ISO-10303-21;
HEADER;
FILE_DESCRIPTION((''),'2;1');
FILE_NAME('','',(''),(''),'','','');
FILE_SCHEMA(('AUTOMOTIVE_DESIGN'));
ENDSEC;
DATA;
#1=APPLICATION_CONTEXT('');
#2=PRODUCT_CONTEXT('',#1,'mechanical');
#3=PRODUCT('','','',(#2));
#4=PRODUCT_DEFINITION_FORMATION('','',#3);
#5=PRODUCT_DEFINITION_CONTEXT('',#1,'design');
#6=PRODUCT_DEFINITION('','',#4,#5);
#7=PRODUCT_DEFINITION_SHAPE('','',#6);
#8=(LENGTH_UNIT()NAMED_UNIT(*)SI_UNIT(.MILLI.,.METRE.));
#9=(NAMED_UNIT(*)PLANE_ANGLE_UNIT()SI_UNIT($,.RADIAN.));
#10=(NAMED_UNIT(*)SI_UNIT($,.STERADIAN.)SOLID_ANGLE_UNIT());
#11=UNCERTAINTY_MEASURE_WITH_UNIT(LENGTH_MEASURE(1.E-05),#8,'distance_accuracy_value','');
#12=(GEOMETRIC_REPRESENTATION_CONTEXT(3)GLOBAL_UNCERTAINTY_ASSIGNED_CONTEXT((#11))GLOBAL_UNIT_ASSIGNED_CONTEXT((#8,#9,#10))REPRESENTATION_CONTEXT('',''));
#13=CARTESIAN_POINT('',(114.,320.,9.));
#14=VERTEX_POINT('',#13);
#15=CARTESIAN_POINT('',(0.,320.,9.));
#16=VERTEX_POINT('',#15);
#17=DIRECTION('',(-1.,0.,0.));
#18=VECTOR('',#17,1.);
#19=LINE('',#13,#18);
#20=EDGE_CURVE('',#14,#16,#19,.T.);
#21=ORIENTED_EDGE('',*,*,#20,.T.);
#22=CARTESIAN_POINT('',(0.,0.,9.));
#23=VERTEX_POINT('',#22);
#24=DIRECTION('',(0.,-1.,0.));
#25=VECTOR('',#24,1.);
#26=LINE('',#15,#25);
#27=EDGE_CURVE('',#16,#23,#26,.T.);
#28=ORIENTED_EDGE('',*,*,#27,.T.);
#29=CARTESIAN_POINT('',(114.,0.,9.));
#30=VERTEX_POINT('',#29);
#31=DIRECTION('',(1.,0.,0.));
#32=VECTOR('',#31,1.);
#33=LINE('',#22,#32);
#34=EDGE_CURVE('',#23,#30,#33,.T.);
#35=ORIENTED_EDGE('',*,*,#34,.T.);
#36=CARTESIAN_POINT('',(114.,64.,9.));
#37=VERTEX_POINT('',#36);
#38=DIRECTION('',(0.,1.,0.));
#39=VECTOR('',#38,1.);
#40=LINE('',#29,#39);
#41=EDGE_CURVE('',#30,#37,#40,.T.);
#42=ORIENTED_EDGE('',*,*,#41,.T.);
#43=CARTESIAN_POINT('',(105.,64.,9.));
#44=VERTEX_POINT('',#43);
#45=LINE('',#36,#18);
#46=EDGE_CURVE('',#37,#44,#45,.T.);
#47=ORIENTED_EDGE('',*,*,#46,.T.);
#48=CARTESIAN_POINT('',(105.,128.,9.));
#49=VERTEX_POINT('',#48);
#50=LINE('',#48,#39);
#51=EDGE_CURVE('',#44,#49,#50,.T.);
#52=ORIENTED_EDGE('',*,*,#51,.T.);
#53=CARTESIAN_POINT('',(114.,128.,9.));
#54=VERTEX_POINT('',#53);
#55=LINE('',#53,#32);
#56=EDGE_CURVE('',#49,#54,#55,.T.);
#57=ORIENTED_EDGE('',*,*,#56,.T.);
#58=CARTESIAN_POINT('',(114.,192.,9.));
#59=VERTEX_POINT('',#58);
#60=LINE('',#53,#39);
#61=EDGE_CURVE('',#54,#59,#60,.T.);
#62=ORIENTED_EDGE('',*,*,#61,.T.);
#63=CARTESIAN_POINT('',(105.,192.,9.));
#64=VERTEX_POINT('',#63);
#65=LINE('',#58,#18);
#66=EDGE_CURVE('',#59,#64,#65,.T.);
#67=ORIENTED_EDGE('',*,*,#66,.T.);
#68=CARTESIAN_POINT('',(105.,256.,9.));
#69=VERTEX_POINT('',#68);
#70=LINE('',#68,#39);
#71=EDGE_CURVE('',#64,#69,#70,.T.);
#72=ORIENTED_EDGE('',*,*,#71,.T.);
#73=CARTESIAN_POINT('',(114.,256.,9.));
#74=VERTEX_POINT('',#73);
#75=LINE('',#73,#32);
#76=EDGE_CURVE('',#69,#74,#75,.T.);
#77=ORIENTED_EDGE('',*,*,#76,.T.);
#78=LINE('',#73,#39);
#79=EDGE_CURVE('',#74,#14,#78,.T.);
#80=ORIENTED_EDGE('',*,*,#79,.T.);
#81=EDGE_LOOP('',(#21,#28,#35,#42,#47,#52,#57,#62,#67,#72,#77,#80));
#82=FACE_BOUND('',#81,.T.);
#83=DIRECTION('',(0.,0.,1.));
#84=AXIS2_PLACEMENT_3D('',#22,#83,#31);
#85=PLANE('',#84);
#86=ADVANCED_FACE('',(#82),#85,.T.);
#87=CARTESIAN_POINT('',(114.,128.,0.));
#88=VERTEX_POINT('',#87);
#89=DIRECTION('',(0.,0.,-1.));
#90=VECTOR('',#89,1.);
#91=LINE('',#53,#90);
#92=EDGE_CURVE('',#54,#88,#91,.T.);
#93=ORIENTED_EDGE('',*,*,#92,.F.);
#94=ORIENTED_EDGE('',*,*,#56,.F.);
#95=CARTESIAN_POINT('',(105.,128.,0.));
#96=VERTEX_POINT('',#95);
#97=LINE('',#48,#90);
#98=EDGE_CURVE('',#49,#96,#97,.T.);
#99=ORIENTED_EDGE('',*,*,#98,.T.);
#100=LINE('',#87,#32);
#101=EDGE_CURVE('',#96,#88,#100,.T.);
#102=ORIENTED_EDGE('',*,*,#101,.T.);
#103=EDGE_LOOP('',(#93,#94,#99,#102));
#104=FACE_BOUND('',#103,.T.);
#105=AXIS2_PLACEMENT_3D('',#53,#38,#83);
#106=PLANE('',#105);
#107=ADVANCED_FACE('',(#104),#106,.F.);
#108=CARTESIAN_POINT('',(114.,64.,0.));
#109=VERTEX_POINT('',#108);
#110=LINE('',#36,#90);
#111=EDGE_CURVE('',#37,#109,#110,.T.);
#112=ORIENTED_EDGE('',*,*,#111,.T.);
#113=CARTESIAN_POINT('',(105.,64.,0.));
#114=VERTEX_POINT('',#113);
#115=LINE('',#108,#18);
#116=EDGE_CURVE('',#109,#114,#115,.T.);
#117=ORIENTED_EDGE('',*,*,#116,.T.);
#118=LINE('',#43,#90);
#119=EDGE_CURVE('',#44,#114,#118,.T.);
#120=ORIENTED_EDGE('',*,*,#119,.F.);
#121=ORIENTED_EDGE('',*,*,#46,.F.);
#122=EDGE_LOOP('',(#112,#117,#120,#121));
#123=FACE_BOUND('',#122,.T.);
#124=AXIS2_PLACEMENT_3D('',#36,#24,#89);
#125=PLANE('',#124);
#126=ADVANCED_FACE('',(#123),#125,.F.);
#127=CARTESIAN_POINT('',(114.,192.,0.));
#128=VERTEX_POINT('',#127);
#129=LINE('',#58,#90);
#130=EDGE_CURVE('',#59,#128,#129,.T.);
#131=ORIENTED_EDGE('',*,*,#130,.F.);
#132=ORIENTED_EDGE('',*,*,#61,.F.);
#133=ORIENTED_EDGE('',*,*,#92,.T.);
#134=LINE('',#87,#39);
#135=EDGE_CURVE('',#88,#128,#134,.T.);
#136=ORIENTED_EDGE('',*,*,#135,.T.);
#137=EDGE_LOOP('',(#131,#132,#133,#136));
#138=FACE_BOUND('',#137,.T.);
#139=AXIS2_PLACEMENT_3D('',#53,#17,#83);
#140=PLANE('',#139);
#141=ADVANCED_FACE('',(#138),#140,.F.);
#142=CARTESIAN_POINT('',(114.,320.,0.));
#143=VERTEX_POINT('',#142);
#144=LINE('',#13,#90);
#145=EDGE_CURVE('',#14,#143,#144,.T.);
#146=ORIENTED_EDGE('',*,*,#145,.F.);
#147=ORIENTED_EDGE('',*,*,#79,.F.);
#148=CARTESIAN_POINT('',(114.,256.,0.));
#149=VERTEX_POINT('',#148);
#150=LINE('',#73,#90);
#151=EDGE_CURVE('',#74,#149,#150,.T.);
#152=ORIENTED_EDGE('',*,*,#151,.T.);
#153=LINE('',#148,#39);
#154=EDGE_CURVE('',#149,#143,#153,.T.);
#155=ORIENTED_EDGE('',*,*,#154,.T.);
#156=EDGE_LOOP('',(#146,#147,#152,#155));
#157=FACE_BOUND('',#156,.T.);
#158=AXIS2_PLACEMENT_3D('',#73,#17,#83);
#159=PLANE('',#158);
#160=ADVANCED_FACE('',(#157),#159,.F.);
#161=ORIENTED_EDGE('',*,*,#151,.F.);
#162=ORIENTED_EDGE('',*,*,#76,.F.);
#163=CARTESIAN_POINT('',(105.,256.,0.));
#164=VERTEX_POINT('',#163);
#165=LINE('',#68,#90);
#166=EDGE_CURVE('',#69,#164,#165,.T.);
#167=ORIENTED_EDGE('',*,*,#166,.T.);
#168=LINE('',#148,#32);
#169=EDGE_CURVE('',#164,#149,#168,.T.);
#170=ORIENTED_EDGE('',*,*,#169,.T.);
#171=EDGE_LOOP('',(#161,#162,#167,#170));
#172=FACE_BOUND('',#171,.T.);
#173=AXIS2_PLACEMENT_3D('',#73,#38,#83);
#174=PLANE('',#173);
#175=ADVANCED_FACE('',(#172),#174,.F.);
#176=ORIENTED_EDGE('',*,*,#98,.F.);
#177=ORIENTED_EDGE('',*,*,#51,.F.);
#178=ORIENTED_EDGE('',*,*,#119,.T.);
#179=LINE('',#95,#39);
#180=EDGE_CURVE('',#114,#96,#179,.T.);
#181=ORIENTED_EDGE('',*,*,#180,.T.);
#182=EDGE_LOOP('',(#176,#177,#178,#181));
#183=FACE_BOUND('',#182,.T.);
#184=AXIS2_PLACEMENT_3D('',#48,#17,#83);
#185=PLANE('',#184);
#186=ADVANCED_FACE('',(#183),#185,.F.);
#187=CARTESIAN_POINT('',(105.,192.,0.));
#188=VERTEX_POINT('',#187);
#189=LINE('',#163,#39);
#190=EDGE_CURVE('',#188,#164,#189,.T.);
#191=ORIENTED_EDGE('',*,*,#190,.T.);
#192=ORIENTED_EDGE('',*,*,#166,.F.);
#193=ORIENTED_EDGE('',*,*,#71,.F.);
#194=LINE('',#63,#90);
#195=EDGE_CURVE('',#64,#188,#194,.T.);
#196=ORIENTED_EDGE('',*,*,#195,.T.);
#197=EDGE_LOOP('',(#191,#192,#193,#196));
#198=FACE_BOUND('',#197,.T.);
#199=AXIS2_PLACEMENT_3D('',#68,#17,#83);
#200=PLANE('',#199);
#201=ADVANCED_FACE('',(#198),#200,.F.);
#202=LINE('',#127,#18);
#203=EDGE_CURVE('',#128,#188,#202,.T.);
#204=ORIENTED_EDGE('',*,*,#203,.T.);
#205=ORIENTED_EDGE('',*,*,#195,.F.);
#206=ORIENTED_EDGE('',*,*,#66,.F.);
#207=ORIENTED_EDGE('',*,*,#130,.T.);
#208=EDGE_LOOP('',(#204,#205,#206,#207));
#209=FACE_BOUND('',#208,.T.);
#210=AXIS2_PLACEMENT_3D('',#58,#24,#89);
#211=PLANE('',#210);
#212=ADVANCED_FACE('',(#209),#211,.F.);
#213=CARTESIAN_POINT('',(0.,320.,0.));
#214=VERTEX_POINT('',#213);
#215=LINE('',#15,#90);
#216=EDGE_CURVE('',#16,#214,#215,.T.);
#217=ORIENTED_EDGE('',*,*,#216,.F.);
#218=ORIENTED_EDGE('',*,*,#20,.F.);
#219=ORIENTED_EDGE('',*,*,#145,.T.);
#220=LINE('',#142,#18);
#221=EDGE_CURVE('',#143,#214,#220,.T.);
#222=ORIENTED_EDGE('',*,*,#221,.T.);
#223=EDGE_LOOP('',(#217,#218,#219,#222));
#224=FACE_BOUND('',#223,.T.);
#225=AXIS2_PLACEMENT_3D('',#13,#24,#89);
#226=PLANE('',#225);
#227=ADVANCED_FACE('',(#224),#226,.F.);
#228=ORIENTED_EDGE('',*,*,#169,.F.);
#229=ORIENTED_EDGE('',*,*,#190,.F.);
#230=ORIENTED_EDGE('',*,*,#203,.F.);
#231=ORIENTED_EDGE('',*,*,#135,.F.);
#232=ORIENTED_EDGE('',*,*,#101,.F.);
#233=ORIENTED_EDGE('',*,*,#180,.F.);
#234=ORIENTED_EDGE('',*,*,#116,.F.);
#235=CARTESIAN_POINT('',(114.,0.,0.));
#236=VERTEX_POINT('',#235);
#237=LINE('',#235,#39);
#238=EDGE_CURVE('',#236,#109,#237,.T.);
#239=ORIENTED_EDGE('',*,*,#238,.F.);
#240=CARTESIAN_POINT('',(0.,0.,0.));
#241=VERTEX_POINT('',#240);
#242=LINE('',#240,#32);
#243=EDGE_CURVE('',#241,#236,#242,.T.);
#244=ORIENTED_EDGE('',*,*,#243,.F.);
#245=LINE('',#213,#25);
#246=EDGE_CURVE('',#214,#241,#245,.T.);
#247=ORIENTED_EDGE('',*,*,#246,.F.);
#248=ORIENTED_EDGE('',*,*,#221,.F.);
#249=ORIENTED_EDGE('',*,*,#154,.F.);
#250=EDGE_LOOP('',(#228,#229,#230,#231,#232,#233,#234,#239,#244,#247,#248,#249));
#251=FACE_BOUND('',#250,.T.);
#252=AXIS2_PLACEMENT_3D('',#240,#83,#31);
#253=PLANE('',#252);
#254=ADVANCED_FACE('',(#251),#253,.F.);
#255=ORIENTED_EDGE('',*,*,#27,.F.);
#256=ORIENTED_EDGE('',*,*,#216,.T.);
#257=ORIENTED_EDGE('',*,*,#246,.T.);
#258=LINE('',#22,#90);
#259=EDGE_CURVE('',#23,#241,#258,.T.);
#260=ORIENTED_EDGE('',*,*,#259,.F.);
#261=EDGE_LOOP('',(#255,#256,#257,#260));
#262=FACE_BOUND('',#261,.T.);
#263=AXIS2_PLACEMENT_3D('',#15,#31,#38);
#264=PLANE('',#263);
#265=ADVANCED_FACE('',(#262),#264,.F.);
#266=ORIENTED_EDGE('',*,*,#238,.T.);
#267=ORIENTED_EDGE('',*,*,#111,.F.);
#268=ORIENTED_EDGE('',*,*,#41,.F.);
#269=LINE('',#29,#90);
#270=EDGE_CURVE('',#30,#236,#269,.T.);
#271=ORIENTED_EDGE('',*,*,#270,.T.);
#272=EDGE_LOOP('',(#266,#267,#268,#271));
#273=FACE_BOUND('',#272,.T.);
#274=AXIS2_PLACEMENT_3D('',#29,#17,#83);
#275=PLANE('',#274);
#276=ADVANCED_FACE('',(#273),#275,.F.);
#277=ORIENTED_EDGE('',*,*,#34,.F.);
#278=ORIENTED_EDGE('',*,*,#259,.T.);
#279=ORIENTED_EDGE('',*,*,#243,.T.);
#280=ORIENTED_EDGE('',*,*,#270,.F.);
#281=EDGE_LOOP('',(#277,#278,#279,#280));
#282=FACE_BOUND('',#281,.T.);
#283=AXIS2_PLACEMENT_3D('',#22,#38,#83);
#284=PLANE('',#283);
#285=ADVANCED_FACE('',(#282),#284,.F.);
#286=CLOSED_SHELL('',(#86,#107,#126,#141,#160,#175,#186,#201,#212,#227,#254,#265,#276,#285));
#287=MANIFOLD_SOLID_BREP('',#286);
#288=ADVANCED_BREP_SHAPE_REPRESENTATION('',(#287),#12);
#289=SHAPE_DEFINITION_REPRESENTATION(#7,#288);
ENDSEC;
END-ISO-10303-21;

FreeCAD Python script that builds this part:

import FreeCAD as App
import Part
import Sketcher
from FreeCAD import Vector
Q = App.Units.Quantity

doc = App.newDocument("Part")
body = doc.addObject("PartDesign::Body", "Body")

# Sketch on XY plane
sketch1 = body.newObject("Sketcher::SketchObject", "Sketch")
sketch1.AttachmentSupport = (doc.getObject("XY_Plane"), [""])
sketch1.MapMode = "FlatFace"
sketch1.addGeometry([
    Part.LineSegment(Vector(114, 192, 0), Vector(105, 192, 0)),  # 0
    Part.LineSegment(Vector(105, 192, 0), Vector(105, 256, 0)),  # 1
    Part.LineSegment(Vector(105, 256, 0), Vector(114, 256, 0)),  # 2
    Part.LineSegment(Vector(114, 256, 0), Vector(114, 320, 0)),  # 3
    Part.LineSegment(Vector(114, 320, 0), Vector(0, 320, 0)),  # 4
    Part.LineSegment(Vector(0, 320, 0), Vector(0, 0, 0)),  # 5
    Part.LineSegment(Vector(0, 0, 0), Vector(114, 0, 0)),  # 6
    Part.LineSegment(Vector(114, 0, 0), Vector(114, 64, 0)),  # 7
    Part.LineSegment(Vector(114, 64, 0), Vector(105, 64, 0)),  # 8
    Part.LineSegment(Vector(105, 64, 0), Vector(105, 128, 0)),  # 9
    Part.LineSegment(Vector(105, 128, 0), Vector(114, 128, 0)),  # 10
    Part.LineSegment(Vector(114, 128, 0), Vector(114, 192, 0)),  # 11
], False)
sketch1.addConstraint([
    Sketcher.Constraint("Coincident", 0, 2, 1, 1),
    Sketcher.Constraint("Coincident", 1, 2, 2, 1),
    Sketcher.Constraint("Coincident", 2, 2, 3, 1),
    Sketcher.Constraint("Coincident", 3, 2, 4, 1),
    Sketcher.Constraint("Coincident", 4, 2, 5, 1),
    Sketcher.Constraint("Coincident", 5, 2, 6, 1),
    Sketcher.Constraint("Coincident", 6, 2, 7, 1),
    Sketcher.Constraint("Coincident", 7, 2, 8, 1),
    Sketcher.Constraint("Coincident", 8, 2, 9, 1),
    Sketcher.Constraint("Coincident", 9, 2, 10, 1),
    Sketcher.Constraint("Coincident", 10, 2, 11, 1),
    Sketcher.Constraint("Coincident", 11, 2, 0, 1),
    Sketcher.Constraint("Horizontal", 0),
    Sketcher.Constraint("Vertical", 1),
    Sketcher.Constraint("Horizontal", 2),
    Sketcher.Constraint("Vertical", 3),
    Sketcher.Constraint("Horizontal", 4),
    Sketcher.Constraint("Vertical", 5),
    Sketcher.Constraint("Horizontal", 6),
    Sketcher.Constraint("Vertical", 7),
    Sketcher.Constraint("Horizontal", 8),
    Sketcher.Constraint("Vertical", 9),
    Sketcher.Constraint("Horizontal", 10),
    Sketcher.Constraint("Vertical", 11),
    Sketcher.Constraint("Coincident", 5, 2, -1, 1),
    Sketcher.Constraint("Vertical", 3, 2, 6, 2),
    Sketcher.Constraint("Vertical", 1, 2, 8, 2),
    Sketcher.Constraint("Vertical", 7, 2, 10, 2),
    Sketcher.Constraint("Equal", 1, 3),
    Sketcher.Constraint("Equal", 3, 7),
    Sketcher.Constraint("Equal", 7, 9),
    Sketcher.Constraint("Equal", 9, 11),
    Sketcher.Constraint("DistanceX", 0, 2, 0, 1, Q("9 mm")),
    Sketcher.Constraint("DistanceX", 4, 2, 4, 1, Q("114 mm")),
    Sketcher.Constraint("DistanceY", 1, 1, 1, 2, Q("64 mm")),
])
pad1 = body.newObject("PartDesign::Pad", "Pad")
pad1.Profile = sketch1
pad1.Length = 9

doc.recompute()
